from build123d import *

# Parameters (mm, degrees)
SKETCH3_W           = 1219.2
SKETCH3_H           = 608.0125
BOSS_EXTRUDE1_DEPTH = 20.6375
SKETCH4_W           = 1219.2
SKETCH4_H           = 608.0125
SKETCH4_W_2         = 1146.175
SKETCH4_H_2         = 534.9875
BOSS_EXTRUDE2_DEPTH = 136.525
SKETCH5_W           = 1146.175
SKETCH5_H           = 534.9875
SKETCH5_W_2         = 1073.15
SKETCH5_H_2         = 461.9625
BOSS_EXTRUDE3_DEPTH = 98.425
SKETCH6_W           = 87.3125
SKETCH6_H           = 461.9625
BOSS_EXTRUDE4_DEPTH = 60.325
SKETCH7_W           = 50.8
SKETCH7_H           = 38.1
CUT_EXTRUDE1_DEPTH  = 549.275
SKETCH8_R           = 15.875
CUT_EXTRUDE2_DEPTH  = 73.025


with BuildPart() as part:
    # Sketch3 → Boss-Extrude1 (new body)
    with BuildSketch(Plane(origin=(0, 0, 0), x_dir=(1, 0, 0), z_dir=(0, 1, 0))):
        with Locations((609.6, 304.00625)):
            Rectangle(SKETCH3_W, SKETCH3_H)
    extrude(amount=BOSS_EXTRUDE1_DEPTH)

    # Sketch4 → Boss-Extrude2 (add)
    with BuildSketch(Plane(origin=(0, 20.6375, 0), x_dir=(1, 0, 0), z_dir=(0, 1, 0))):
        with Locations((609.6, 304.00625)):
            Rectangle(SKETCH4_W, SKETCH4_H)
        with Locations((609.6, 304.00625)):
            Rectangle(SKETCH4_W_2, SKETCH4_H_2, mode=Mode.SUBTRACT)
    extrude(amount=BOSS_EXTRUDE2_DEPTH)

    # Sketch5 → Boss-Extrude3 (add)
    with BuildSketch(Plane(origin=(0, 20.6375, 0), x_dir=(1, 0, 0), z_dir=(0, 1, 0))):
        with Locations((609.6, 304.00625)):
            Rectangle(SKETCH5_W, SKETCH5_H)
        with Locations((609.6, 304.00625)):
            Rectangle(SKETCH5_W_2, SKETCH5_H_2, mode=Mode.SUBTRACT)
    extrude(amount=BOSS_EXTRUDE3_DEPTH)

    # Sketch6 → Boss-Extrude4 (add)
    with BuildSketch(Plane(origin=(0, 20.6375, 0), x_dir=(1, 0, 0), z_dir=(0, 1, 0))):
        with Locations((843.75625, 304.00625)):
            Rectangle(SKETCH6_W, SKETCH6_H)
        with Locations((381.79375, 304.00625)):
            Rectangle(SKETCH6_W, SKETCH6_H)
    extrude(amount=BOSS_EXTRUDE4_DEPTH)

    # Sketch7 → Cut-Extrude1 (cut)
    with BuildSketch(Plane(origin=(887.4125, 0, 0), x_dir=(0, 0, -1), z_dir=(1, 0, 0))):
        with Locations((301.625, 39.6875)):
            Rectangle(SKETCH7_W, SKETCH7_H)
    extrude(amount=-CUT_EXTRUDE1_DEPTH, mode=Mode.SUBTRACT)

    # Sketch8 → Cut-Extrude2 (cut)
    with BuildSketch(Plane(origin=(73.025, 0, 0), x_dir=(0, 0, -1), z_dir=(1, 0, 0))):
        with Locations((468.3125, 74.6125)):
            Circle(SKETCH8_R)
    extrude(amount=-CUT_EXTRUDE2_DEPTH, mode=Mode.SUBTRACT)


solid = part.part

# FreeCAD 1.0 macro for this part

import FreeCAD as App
import Part
import Sketcher
Q = App.Units.Quantity


def add_polygon(sketch, points):
    """Adds a closed chain of lines whose ends are joined by coincident constraints."""
    first, n = sketch.GeometryCount, len(points)
    for a, b in zip(points, points[1:] + points[:1]):
        sketch.addGeometry(Part.LineSegment(App.Vector(*a, 0), App.Vector(*b, 0)), False)
    for i in range(n):
        sketch.addConstraint(Sketcher.Constraint("Coincident", first + i, 2, first + (i + 1) % n, 1))

doc = App.newDocument("Part")
body = doc.addObject("PartDesign::Body", "Body")

# Sketch on XZ plane
sketch1 = body.newObject("Sketcher::SketchObject", "Sketch")
sketch1.AttachmentSupport = (doc.getObject("XZ_Plane"), [""])
sketch1.MapMode = "FlatFace"
add_polygon(sketch1, [(0, -608.0125), (0, 0), (1219.2, 0), (1219.2, -608.0125)])  # lines 0-3
sketch1.addConstraint(Sketcher.Constraint("Vertical", 0))
sketch1.addConstraint(Sketcher.Constraint("Horizontal", 1))
sketch1.addConstraint(Sketcher.Constraint("Vertical", 2))
sketch1.addConstraint(Sketcher.Constraint("Horizontal", 3))
sketch1.addConstraint(Sketcher.Constraint("Coincident", 0, 2, -1, 1))
sketch1.addConstraint(Sketcher.Constraint("DistanceX", 1, 1, 1, 2, Q("48 in")))
sketch1.addConstraint(Sketcher.Constraint("DistanceY", 0, 1, 0, 2, Q("23.9375 in")))
pad1 = body.newObject("PartDesign::Pad", "Pad")
pad1.Profile = sketch1
pad1.Length = Q("0.8125 in")
pad1.Reversed = True

# Sketch on XZ plane
sketch2 = body.newObject("Sketcher::SketchObject", "Sketch001")
sketch2.AttachmentSupport = (doc.getObject("XZ_Plane"), [""])
sketch2.MapMode = "FlatFace"
sketch2.AttachmentOffset = App.Placement(App.Vector(0, 0, -0.8125 * 25.4), App.Rotation())
add_polygon(sketch2, [(0, -608.0125), (0, 0), (1219.2, 0), (1219.2, -608.0125)])  # lines 0-3
add_polygon(sketch2, [(1182.6875, -36.5125), (36.5125, -36.5125), (36.5125, -571.5), (1182.6875, -571.5)])  # lines 4-7
sketch2.addConstraint(Sketcher.Constraint("Vertical", 0))
sketch2.addConstraint(Sketcher.Constraint("Horizontal", 1))
sketch2.addConstraint(Sketcher.Constraint("Vertical", 2))
sketch2.addConstraint(Sketcher.Constraint("Horizontal", 3))
sketch2.addConstraint(Sketcher.Constraint("Horizontal", 4))
sketch2.addConstraint(Sketcher.Constraint("Vertical", 5))
sketch2.addConstraint(Sketcher.Constraint("Horizontal", 6))
sketch2.addConstraint(Sketcher.Constraint("Vertical", 7))
sketch2.addConstraint(Sketcher.Constraint("Coincident", 0, 2, -1, 1))
sketch2.addConstraint(Sketcher.Constraint("DistanceX", 1, 1, 1, 2, Q("48 in")))
sketch2.addConstraint(Sketcher.Constraint("DistanceY", 5, 2, -1, 1, Q("22.5 in")))
sketch2.addConstraint(Sketcher.Constraint("DistanceY", 3, 2, 4, 2, Q("22.5 in")))
sketch2.addConstraint(Sketcher.Constraint("DistanceX", 4, 2, 4, 1, Q("45.125 in")))
sketch2.addConstraint(Sketcher.Constraint("DistanceY", 0, 1, 0, 2, Q("23.9375 in")))
sketch2.addConstraint(Sketcher.Constraint("DistanceX", -1, 1, 4, 2, Q("1.4375 in")))
pad2 = body.newObject("PartDesign::Pad", "Pad001")
pad2.Profile = sketch2
pad2.Length = Q("5.375 in")
pad2.Reversed = True

# Sketch on XZ plane
sketch3 = body.newObject("Sketcher::SketchObject", "Sketch002")
sketch3.AttachmentSupport = (doc.getObject("XZ_Plane"), [""])
sketch3.MapMode = "FlatFace"
sketch3.AttachmentOffset = App.Placement(App.Vector(0, 0, -0.8125 * 25.4), App.Rotation())
add_polygon(sketch3, [(36.5125, -571.5), (36.5125, -36.5125), (1182.6875, -36.5125), (1182.6875, -571.5)])  # lines 0-3
add_polygon(sketch3, [(1146.175, -73.025), (73.025, -73.025), (73.025, -534.9875), (1146.175, -534.9875)])  # lines 4-7
sketch3.addConstraint(Sketcher.Constraint("Vertical", 0))
sketch3.addConstraint(Sketcher.Constraint("Horizontal", 1))
sketch3.addConstraint(Sketcher.Constraint("Vertical", 2))
sketch3.addConstraint(Sketcher.Constraint("Horizontal", 3))
sketch3.addConstraint(Sketcher.Constraint("Horizontal", 4))
sketch3.addConstraint(Sketcher.Constraint("Vertical", 5))
sketch3.addConstraint(Sketcher.Constraint("Horizontal", 6))
sketch3.addConstraint(Sketcher.Constraint("Vertical", 7))
sketch3.addConstraint(Sketcher.Constraint("DistanceX", 4, 2, 4, 1, Q("42.25 in")))
sketch3.addConstraint(Sketcher.Constraint("DistanceY", 2, 2, -1, 1, Q("22.5 in")))
sketch3.addConstraint(Sketcher.Constraint("DistanceX", 1, 1, 1, 2, Q("45.125 in")))
sketch3.addConstraint(Sketcher.Constraint("DistanceY", 0, 1, 0, 2, Q("21.0625 in")))
sketch3.addConstraint(Sketcher.Constraint("DistanceY", 5, 2, 5, 1, Q("18.1875 in")))
sketch3.addConstraint(Sketcher.Constraint("DistanceX", -1, 1, 0, 2, Q("1.4375 in")))
sketch3.addConstraint(Sketcher.Constraint("DistanceX", -1, 1, 4, 2, Q("2.875 in")))
sketch3.addConstraint(Sketcher.Constraint("DistanceY", 4, 2, -1, 1, Q("2.875 in")))
pad3 = body.newObject("PartDesign::Pad", "Pad002")
pad3.Profile = sketch3
pad3.Length = Q("3.875 in")
pad3.Reversed = True

# Sketch on XZ plane
sketch4 = body.newObject("Sketcher::SketchObject", "Sketch003")
sketch4.AttachmentSupport = (doc.getObject("XZ_Plane"), [""])
sketch4.MapMode = "FlatFace"
sketch4.AttachmentOffset = App.Placement(App.Vector(0, 0, -0.8125 * 25.4), App.Rotation())
add_polygon(sketch4, [(800.1, -534.9875), (800.1, -73.025), (887.4125, -73.025), (887.4125, -534.9875)])  # lines 0-3
add_polygon(sketch4, [(338.1375, -534.9875), (338.1375, -73.025), (425.45, -73.025), (425.45, -534.9875)])  # lines 4-7
sketch4.addConstraint(Sketcher.Constraint("Vertical", 0))
sketch4.addConstraint(Sketcher.Constraint("Horizontal", 1))
sketch4.addConstraint(Sketcher.Constraint("Vertical", 2))
sketch4.addConstraint(Sketcher.Constraint("Horizontal", 3))
sketch4.addConstraint(Sketcher.Constraint("Vertical", 4))
sketch4.addConstraint(Sketcher.Constraint("Horizontal", 5))
sketch4.addConstraint(Sketcher.Constraint("Vertical", 6))
sketch4.addConstraint(Sketcher.Constraint("Horizontal", 7))
sketch4.addConstraint(Sketcher.Constraint("Horizontal", 1, 2, 4, 2))
sketch4.addConstraint(Sketcher.Constraint("Horizontal", 3, 2, 6, 2))
sketch4.addConstraint(Sketcher.Constraint("Equal", 3, 5))
sketch4.addConstraint(Sketcher.Constraint("DistanceX", -1, 1, 0, 2, Q("31.5 in")))
sketch4.addConstraint(Sketcher.Constraint("DistanceX", 1, 1, 1, 2, Q("3.4375 in")))
sketch4.addConstraint(Sketcher.Constraint("DistanceY", 0, 1, 0, 2, Q("18.1875 in")))
sketch4.addConstraint(Sketcher.Constraint("DistanceX", -1, 1, 5, 2, Q("16.75 in")))
sketch4.addConstraint(Sketcher.Constraint("DistanceY", 0, 2, -1, 1, Q("2.875 in")))
pad4 = body.newObject("PartDesign::Pad", "Pad003")
pad4.Profile = sketch4
pad4.Length = Q("2.375 in")
pad4.Reversed = True

# Sketch on YZ plane
sketch5 = body.newObject("Sketcher::SketchObject", "Sketch004")
sketch5.AttachmentSupport = (doc.getObject("YZ_Plane"), [""])
sketch5.MapMode = "FlatFace"
sketch5.AttachmentOffset = App.Placement(App.Vector(0, 0, 34.9375 * 25.4), App.Rotation())
add_polygon(sketch5, [(58.7375, -276.225), (20.6375, -276.225), (20.6375, -327.025), (58.7375, -327.025)])  # lines 0-3
sketch5.addConstraint(Sketcher.Constraint("Horizontal", 0))
sketch5.addConstraint(Sketcher.Constraint("Vertical", 1))
sketch5.addConstraint(Sketcher.Constraint("Horizontal", 2))
sketch5.addConstraint(Sketcher.Constraint("Vertical", 3))
sketch5.addConstraint(Sketcher.Constraint("DistanceY", 1, 2, 1, 1, Q("2 in")))
sketch5.addConstraint(Sketcher.Constraint("DistanceX", 0, 2, 0, 1, Q("1.5 in")))
sketch5.addConstraint(Sketcher.Constraint("DistanceX", -1, 1, 0, 2, Q("0.8125 in")))
sketch5.addConstraint(Sketcher.Constraint("DistanceY", 0, 2, -1, 1, Q("10.875 in")))
pocket1 = body.newObject("PartDesign::Pocket", "Pocket")
pocket1.Profile = sketch5
pocket1.Length = Q("21.625 in")

# Sketch on YZ plane
sketch6 = body.newObject("Sketcher::SketchObject", "Sketch005")
sketch6.AttachmentSupport = (doc.getObject("YZ_Plane"), [""])
sketch6.MapMode = "FlatFace"
sketch6.AttachmentOffset = App.Placement(App.Vector(0, 0, 2.875 * 25.4), App.Rotation())
sketch6.addGeometry(Part.Circle(App.Vector(74.6125, -468.3125, 0), App.Vector(0, 0, 1), 15.875), False)
sketch6.addConstraint(Sketcher.Constraint("Diameter", 0, Q("1.25 in")))
sketch6.addConstraint(Sketcher.Constraint("DistanceX", -1, 1, 0, 3, Q("2.9375 in")))
sketch6.addConstraint(Sketcher.Constraint("DistanceY", 0, 3, -1, 1, Q("18.4375 in")))
pocket2 = body.newObject("PartDesign::Pocket", "Pocket001")
pocket2.Profile = sketch6
pocket2.Length = Q("2.875 in")

doc.recompute()
